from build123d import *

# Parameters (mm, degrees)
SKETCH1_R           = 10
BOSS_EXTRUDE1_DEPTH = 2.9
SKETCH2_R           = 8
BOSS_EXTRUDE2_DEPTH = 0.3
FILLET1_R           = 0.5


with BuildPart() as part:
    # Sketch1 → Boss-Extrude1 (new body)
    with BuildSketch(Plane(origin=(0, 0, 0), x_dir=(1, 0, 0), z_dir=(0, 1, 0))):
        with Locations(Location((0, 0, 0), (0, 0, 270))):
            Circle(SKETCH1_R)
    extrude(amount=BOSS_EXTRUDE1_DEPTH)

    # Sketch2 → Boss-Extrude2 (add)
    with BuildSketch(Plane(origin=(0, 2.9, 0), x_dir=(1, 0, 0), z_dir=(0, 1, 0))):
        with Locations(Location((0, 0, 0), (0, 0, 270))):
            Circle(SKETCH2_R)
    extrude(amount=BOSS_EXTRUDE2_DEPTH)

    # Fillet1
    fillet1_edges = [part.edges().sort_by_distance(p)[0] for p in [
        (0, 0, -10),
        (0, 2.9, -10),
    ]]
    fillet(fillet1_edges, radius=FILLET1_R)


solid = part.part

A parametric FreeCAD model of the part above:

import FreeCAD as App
import Part
import Sketcher
Q = App.Units.Quantity


def edges_at(feature, points):
    """Names of the edges that pass closest to the given points."""
    edges = feature.Shape.Edges
    near = lambda p: min(range(len(edges)), key=lambda i: edges[i].distToShape(Part.Vertex(*p))[0])
    return sorted({f"Edge{near(p) + 1}" for p in points})

doc = App.newDocument("Part")
body = doc.addObject("PartDesign::Body", "Body")

sketch1 = body.newObject("Sketcher::SketchObject", "Sketch")
sketch1.AttachmentSupport = (doc.getObject("XZ_Plane"), [""])
sketch1.MapMode = "FlatFace"
sketch1.addGeometry(Part.Circle(App.Vector(0, 0, 0), App.Vector(0, 0, 1), 10), False)
sketch1.addConstraint([
    Sketcher.Constraint("Coincident", 0, 3, -1, 1),
    Sketcher.Constraint("Diameter", 0, Q("20 mm")),
])
pad1 = body.newObject("PartDesign::Pad", "Pad")
pad1.Profile = sketch1
pad1.Length = 2.9
pad1.Reversed = True

sketch2 = body.newObject("Sketcher::SketchObject", "Sketch001")
sketch2.AttachmentSupport = (doc.getObject("XZ_Plane"), [""])
sketch2.MapMode = "FlatFace"
sketch2.AttachmentOffset = App.Placement(App.Vector(0, 0, -2.9), App.Rotation())
sketch2.addGeometry(Part.Circle(App.Vector(0, 0, 0), App.Vector(0, 0, 1), 8), False)
sketch2.addConstraint([
    Sketcher.Constraint("Coincident", 0, 3, -1, 1),
    Sketcher.Constraint("Diameter", 0, Q("16 mm")),
])
pad2 = body.newObject("PartDesign::Pad", "Pad001")
pad2.Profile = sketch2
pad2.Length = 0.3
pad2.Reversed = True
doc.recompute()

fillet = body.newObject("PartDesign::Fillet", "Fillet")
fillet.Base = (pad2, edges_at(pad2, [(0, 0, -10), (0, 2.9, -10)]))
fillet.Radius = 0.5

doc.recompute()
